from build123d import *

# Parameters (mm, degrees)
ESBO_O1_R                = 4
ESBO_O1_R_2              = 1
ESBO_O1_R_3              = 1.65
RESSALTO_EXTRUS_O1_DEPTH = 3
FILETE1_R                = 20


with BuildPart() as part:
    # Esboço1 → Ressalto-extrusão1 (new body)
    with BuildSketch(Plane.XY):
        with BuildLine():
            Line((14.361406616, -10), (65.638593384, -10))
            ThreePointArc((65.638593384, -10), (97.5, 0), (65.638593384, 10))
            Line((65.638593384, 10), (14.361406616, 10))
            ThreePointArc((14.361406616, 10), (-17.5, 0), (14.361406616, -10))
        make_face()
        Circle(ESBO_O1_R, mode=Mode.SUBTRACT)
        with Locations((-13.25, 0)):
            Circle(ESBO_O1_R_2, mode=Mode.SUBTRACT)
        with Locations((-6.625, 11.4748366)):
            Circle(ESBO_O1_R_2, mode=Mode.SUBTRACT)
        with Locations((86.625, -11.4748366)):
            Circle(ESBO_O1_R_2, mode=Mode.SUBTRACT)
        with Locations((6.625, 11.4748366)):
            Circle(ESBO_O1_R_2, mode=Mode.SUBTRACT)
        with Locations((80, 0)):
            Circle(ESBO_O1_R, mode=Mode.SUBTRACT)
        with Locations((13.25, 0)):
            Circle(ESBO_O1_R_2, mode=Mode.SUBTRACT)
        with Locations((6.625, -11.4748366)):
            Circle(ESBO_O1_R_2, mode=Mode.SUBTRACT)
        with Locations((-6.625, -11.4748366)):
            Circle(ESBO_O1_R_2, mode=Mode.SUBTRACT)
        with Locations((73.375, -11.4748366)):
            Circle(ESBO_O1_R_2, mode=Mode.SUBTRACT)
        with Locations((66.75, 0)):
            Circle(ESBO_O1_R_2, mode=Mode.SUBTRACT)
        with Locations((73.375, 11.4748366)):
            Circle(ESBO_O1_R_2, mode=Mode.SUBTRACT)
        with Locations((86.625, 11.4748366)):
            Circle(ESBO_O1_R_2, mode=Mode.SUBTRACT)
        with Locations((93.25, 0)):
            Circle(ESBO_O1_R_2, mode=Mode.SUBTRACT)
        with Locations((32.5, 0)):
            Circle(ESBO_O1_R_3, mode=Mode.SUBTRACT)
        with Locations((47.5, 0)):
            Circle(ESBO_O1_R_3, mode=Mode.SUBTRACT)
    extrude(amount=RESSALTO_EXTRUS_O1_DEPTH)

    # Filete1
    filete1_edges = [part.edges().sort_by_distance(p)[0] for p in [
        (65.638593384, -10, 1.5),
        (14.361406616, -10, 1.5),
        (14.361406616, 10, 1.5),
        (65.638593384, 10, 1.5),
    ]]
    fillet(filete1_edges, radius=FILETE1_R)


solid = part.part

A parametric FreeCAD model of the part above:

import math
import FreeCAD as App
import Part
import Sketcher
from FreeCAD import Vector


def edges_at(feature, points):
    """Names of the edges that pass closest to the given points."""
    edges = feature.Shape.Edges
    near = lambda p: min(range(len(edges)), key=lambda i: edges[i].distToShape(Part.Vertex(*p))[0])
    return sorted({f"Edge{near(p) + 1}" for p in points})

doc = App.newDocument("Part")
params = doc.addObject("Spreadsheet::Sheet", "Params")
for row, (alias, value) in enumerate([
    ("sketch1_diameter", "2 mm"),
    ("sketch1_diameter2", "8 mm"),
    ("sketch1_diameter3", "3.3 mm"),
    ("sketch1_radius", "17.5 mm"),
    ("pad1_length", "3 mm"),
    ("fillet_radius", "20 mm"),
], start=1):
    params.set(f"A{row}", alias)
    params.set(f"B{row}", "=" + value)
    params.setAlias(f"B{row}", alias)

body = doc.addObject("PartDesign::Body", "Body")

# Sketch on XY plane
sketch1 = doc.addObject("Sketcher::SketchObject", "Sketch")
body.addObject(sketch1)
sketch1.AttachmentSupport = (doc.XY_Plane, [""])
sketch1.MapMode = "FlatFace"
sketch1.addGeometry(Part.LineSegment(Vector(14.361407, -10, 0), Vector(65.638593, -10, 0)), False)
sketch1.addGeometry(Part.ArcOfCircle(Part.Circle(Vector(80, 0, 0), Vector(0, 0, 1), 17.5), math.radians(-145.150095), math.radians(145.150095)), False)
sketch1.addGeometry(Part.LineSegment(Vector(65.638593, 10, 0), Vector(14.361407, 10, 0)), False)
sketch1.addGeometry(Part.ArcOfCircle(Part.Circle(Vector(0, 0, 0), Vector(0, 0, 1), 17.5), math.radians(34.849905), math.radians(325.150095)), False)
sketch1.addGeometry(Part.Circle(Vector(-6.625, -11.474837, 0), Vector(0, 0, 1), 1), False)
sketch1.addGeometry(Part.Circle(Vector(6.625, -11.474837, 0), Vector(0, 0, 1), 1), False)
sketch1.addGeometry(Part.Circle(Vector(73.375, -11.474837, 0), Vector(0, 0, 1), 1), False)
sketch1.addGeometry(Part.Circle(Vector(86.625, -11.474837, 0), Vector(0, 0, 1), 1), False)
sketch1.addGeometry(Part.Circle(Vector(-13.25, 0, 0), Vector(0, 0, 1), 1), False)
sketch1.addGeometry(Part.Circle(Vector(0, 0, 0), Vector(0, 0, 1), 4), False)
sketch1.addGeometry(Part.Circle(Vector(13.25, 0, 0), Vector(0, 0, 1), 1), False)
sketch1.addGeometry(Part.Circle(Vector(32.5, 0, 0), Vector(0, 0, 1), 1.65), False)
sketch1.addGeometry(Part.Circle(Vector(-6.625, 11.474837, 0), Vector(0, 0, 1), 1), False)
sketch1.addGeometry(Part.Circle(Vector(6.625, 11.474837, 0), Vector(0, 0, 1), 1), False)
sketch1.addGeometry(Part.Circle(Vector(47.5, 0, 0), Vector(0, 0, 1), 1.65), False)
sketch1.addGeometry(Part.Circle(Vector(66.75, 0, 0), Vector(0, 0, 1), 1), False)
sketch1.addGeometry(Part.Circle(Vector(80, 0, 0), Vector(0, 0, 1), 4), False)
sketch1.addGeometry(Part.Circle(Vector(93.25, 0, 0), Vector(0, 0, 1), 1), False)
sketch1.addGeometry(Part.Circle(Vector(73.375, 11.474837, 0), Vector(0, 0, 1), 1), False)
sketch1.addGeometry(Part.Circle(Vector(86.625, 11.474837, 0), Vector(0, 0, 1), 1), False)
sketch1.addConstraint(Sketcher.Constraint("Coincident", 0, 2, 1, 1))
sketch1.addConstraint(Sketcher.Constraint("Coincident", 1, 2, 2, 1))
sketch1.addConstraint(Sketcher.Constraint("Coincident", 2, 2, 3, 1))
sketch1.addConstraint(Sketcher.Constraint("Coincident", 3, 2, 0, 1))
sketch1.addConstraint(Sketcher.Constraint("Horizontal", 0))
sketch1.addConstraint(Sketcher.Constraint("Horizontal", 2))
sketch1.addConstraint(Sketcher.Constraint("Coincident", 3, 3, -1, 1))
sketch1.addConstraint(Sketcher.Constraint("Coincident", 9, 3, -1, 1))
sketch1.addConstraint(Sketcher.Constraint("Coincident", 16, 3, 1, 3))
sketch1.addConstraint(Sketcher.Constraint("Equal", 1, 3))
sketch1.addConstraint(Sketcher.Constraint("Equal", 4, 5))
sketch1.addConstraint(Sketcher.Constraint("Equal", 5, 6))
sketch1.addConstraint(Sketcher.Constraint("Equal", 6, 7))
sketch1.addConstraint(Sketcher.Constraint("Equal", 7, 8))
sketch1.addConstraint(Sketcher.Constraint("Equal", 8, 10))
sketch1.addConstraint(Sketcher.Constraint("Equal", 10, 12))
sketch1.addConstraint(Sketcher.Constraint("Equal", 12, 13))
sketch1.addConstraint(Sketcher.Constraint("Equal", 11, 14))
sketch1.addConstraint(Sketcher.Constraint("Equal", 13, 15))
sketch1.addConstraint(Sketcher.Constraint("Equal", 9, 16))
sketch1.addConstraint(Sketcher.Constraint("Equal", 15, 17))
sketch1.addConstraint(Sketcher.Constraint("Equal", 17, 18))
sketch1.addConstraint(Sketcher.Constraint("Equal", 18, 19))
sketch1.addConstraint(Sketcher.Constraint("Symmetric", 8, 3, 10, 3, -1, 1))
sketch1.addConstraint(Sketcher.Constraint("Symmetric", 5, 3, 12, 3, -1, 1))
sketch1.addConstraint(Sketcher.Constraint("Symmetric", 4, 3, 13, 3, -1, 1))
sketch1.addConstraint(Sketcher.Constraint("Symmetric", 4, 3, 5, 3, -2))
sketch1.addConstraint(Sketcher.Constraint("Symmetric", 6, 3, 18, 3, -1))
sketch1.addConstraint(Sketcher.Constraint("Symmetric", 7, 3, 19, 3, -1))
sketch1.addConstraint(Sketcher.Constraint("Symmetric", 0, 2, 1, 2, -1))
sketch1.addConstraint(Sketcher.Constraint("PointOnObject", 8, 3, -1))
sketch1.addConstraint(Sketcher.Constraint("PointOnObject", 11, 3, -1))
sketch1.addConstraint(Sketcher.Constraint("PointOnObject", 14, 3, -1))
sketch1.addConstraint(Sketcher.Constraint("PointOnObject", 15, 3, -1))
sketch1.addConstraint(Sketcher.Constraint("PointOnObject", 17, 3, -1))
sketch1.addConstraint(Sketcher.Constraint("Horizontal", 5, 3, 6, 3))
sketch1.addConstraint(Sketcher.Constraint("Horizontal", 6, 3, 7, 3))
sketch1.addConstraint(Sketcher.Constraint("Diameter", 4, 2.0))
sketch1.addConstraint(Sketcher.Constraint("Diameter", 9, 8.0))
sketch1.addConstraint(Sketcher.Constraint("Diameter", 11, 3.3))
sketch1.addConstraint(Sketcher.Constraint("Radius", 1, 17.5))
sketch1.addConstraint(Sketcher.Constraint("DistanceX", -1, 1, 1, 3, 80.0))
sketch1.addConstraint(Sketcher.Constraint("DistanceY", 0, 2, -1, 1, 10.0))
sketch1.addConstraint(Sketcher.Constraint("DistanceX", 4, 3, 6, 3, 80.0))
sketch1.addConstraint(Sketcher.Constraint("DistanceX", 5, 3, 7, 3, 80.0))
sketch1.addConstraint(Sketcher.Constraint("DistanceX", 11, 3, 14, 3, 15.0))
sketch1.addConstraint(Sketcher.Constraint("DistanceX", -1, 1, 11, 3, 32.5))
sketch1.addConstraint(Sketcher.Constraint("DistanceX", 8, 3, 10, 3, 26.5))
sketch1.addConstraint(Sketcher.Constraint("DistanceX", 15, 3, 17, 3, 26.5))
sketch1.addConstraint(Sketcher.Constraint("DistanceX", -1, 1, 15, 3, 66.75))
sketch1.addConstraint(Sketcher.Constraint("DistanceX", 4, 3, 5, 3, 13.25))
sketch1.addConstraint(Sketcher.Constraint("DistanceY", 4, 3, -1, 1, 11.474837))
sketch1.setExpression("Constraints[37]", "Params.sketch1_diameter")
sketch1.setExpression("Constraints[38]", "Params.sketch1_diameter2")
sketch1.setExpression("Constraints[39]", "Params.sketch1_diameter3")
sketch1.setExpression("Constraints[40]", "Params.sketch1_radius")
pad1 = doc.addObject("PartDesign::Pad", "Pad")
body.addObject(pad1)
pad1.Profile = sketch1
pad1.setExpression("Length", "Params.pad1_length")
doc.recompute()

fillet = doc.addObject("PartDesign::Fillet", "Fillet")
body.addObject(fillet)
fillet.Base = (pad1, edges_at(pad1, [
    (65.639, -10, 1.5),
    (14.361, -10, 1.5),
    (14.361, 10, 1.5),
    (65.639, 10, 1.5),
]))
fillet.setExpression("Radius", "Params.fillet_radius")

doc.recompute()
